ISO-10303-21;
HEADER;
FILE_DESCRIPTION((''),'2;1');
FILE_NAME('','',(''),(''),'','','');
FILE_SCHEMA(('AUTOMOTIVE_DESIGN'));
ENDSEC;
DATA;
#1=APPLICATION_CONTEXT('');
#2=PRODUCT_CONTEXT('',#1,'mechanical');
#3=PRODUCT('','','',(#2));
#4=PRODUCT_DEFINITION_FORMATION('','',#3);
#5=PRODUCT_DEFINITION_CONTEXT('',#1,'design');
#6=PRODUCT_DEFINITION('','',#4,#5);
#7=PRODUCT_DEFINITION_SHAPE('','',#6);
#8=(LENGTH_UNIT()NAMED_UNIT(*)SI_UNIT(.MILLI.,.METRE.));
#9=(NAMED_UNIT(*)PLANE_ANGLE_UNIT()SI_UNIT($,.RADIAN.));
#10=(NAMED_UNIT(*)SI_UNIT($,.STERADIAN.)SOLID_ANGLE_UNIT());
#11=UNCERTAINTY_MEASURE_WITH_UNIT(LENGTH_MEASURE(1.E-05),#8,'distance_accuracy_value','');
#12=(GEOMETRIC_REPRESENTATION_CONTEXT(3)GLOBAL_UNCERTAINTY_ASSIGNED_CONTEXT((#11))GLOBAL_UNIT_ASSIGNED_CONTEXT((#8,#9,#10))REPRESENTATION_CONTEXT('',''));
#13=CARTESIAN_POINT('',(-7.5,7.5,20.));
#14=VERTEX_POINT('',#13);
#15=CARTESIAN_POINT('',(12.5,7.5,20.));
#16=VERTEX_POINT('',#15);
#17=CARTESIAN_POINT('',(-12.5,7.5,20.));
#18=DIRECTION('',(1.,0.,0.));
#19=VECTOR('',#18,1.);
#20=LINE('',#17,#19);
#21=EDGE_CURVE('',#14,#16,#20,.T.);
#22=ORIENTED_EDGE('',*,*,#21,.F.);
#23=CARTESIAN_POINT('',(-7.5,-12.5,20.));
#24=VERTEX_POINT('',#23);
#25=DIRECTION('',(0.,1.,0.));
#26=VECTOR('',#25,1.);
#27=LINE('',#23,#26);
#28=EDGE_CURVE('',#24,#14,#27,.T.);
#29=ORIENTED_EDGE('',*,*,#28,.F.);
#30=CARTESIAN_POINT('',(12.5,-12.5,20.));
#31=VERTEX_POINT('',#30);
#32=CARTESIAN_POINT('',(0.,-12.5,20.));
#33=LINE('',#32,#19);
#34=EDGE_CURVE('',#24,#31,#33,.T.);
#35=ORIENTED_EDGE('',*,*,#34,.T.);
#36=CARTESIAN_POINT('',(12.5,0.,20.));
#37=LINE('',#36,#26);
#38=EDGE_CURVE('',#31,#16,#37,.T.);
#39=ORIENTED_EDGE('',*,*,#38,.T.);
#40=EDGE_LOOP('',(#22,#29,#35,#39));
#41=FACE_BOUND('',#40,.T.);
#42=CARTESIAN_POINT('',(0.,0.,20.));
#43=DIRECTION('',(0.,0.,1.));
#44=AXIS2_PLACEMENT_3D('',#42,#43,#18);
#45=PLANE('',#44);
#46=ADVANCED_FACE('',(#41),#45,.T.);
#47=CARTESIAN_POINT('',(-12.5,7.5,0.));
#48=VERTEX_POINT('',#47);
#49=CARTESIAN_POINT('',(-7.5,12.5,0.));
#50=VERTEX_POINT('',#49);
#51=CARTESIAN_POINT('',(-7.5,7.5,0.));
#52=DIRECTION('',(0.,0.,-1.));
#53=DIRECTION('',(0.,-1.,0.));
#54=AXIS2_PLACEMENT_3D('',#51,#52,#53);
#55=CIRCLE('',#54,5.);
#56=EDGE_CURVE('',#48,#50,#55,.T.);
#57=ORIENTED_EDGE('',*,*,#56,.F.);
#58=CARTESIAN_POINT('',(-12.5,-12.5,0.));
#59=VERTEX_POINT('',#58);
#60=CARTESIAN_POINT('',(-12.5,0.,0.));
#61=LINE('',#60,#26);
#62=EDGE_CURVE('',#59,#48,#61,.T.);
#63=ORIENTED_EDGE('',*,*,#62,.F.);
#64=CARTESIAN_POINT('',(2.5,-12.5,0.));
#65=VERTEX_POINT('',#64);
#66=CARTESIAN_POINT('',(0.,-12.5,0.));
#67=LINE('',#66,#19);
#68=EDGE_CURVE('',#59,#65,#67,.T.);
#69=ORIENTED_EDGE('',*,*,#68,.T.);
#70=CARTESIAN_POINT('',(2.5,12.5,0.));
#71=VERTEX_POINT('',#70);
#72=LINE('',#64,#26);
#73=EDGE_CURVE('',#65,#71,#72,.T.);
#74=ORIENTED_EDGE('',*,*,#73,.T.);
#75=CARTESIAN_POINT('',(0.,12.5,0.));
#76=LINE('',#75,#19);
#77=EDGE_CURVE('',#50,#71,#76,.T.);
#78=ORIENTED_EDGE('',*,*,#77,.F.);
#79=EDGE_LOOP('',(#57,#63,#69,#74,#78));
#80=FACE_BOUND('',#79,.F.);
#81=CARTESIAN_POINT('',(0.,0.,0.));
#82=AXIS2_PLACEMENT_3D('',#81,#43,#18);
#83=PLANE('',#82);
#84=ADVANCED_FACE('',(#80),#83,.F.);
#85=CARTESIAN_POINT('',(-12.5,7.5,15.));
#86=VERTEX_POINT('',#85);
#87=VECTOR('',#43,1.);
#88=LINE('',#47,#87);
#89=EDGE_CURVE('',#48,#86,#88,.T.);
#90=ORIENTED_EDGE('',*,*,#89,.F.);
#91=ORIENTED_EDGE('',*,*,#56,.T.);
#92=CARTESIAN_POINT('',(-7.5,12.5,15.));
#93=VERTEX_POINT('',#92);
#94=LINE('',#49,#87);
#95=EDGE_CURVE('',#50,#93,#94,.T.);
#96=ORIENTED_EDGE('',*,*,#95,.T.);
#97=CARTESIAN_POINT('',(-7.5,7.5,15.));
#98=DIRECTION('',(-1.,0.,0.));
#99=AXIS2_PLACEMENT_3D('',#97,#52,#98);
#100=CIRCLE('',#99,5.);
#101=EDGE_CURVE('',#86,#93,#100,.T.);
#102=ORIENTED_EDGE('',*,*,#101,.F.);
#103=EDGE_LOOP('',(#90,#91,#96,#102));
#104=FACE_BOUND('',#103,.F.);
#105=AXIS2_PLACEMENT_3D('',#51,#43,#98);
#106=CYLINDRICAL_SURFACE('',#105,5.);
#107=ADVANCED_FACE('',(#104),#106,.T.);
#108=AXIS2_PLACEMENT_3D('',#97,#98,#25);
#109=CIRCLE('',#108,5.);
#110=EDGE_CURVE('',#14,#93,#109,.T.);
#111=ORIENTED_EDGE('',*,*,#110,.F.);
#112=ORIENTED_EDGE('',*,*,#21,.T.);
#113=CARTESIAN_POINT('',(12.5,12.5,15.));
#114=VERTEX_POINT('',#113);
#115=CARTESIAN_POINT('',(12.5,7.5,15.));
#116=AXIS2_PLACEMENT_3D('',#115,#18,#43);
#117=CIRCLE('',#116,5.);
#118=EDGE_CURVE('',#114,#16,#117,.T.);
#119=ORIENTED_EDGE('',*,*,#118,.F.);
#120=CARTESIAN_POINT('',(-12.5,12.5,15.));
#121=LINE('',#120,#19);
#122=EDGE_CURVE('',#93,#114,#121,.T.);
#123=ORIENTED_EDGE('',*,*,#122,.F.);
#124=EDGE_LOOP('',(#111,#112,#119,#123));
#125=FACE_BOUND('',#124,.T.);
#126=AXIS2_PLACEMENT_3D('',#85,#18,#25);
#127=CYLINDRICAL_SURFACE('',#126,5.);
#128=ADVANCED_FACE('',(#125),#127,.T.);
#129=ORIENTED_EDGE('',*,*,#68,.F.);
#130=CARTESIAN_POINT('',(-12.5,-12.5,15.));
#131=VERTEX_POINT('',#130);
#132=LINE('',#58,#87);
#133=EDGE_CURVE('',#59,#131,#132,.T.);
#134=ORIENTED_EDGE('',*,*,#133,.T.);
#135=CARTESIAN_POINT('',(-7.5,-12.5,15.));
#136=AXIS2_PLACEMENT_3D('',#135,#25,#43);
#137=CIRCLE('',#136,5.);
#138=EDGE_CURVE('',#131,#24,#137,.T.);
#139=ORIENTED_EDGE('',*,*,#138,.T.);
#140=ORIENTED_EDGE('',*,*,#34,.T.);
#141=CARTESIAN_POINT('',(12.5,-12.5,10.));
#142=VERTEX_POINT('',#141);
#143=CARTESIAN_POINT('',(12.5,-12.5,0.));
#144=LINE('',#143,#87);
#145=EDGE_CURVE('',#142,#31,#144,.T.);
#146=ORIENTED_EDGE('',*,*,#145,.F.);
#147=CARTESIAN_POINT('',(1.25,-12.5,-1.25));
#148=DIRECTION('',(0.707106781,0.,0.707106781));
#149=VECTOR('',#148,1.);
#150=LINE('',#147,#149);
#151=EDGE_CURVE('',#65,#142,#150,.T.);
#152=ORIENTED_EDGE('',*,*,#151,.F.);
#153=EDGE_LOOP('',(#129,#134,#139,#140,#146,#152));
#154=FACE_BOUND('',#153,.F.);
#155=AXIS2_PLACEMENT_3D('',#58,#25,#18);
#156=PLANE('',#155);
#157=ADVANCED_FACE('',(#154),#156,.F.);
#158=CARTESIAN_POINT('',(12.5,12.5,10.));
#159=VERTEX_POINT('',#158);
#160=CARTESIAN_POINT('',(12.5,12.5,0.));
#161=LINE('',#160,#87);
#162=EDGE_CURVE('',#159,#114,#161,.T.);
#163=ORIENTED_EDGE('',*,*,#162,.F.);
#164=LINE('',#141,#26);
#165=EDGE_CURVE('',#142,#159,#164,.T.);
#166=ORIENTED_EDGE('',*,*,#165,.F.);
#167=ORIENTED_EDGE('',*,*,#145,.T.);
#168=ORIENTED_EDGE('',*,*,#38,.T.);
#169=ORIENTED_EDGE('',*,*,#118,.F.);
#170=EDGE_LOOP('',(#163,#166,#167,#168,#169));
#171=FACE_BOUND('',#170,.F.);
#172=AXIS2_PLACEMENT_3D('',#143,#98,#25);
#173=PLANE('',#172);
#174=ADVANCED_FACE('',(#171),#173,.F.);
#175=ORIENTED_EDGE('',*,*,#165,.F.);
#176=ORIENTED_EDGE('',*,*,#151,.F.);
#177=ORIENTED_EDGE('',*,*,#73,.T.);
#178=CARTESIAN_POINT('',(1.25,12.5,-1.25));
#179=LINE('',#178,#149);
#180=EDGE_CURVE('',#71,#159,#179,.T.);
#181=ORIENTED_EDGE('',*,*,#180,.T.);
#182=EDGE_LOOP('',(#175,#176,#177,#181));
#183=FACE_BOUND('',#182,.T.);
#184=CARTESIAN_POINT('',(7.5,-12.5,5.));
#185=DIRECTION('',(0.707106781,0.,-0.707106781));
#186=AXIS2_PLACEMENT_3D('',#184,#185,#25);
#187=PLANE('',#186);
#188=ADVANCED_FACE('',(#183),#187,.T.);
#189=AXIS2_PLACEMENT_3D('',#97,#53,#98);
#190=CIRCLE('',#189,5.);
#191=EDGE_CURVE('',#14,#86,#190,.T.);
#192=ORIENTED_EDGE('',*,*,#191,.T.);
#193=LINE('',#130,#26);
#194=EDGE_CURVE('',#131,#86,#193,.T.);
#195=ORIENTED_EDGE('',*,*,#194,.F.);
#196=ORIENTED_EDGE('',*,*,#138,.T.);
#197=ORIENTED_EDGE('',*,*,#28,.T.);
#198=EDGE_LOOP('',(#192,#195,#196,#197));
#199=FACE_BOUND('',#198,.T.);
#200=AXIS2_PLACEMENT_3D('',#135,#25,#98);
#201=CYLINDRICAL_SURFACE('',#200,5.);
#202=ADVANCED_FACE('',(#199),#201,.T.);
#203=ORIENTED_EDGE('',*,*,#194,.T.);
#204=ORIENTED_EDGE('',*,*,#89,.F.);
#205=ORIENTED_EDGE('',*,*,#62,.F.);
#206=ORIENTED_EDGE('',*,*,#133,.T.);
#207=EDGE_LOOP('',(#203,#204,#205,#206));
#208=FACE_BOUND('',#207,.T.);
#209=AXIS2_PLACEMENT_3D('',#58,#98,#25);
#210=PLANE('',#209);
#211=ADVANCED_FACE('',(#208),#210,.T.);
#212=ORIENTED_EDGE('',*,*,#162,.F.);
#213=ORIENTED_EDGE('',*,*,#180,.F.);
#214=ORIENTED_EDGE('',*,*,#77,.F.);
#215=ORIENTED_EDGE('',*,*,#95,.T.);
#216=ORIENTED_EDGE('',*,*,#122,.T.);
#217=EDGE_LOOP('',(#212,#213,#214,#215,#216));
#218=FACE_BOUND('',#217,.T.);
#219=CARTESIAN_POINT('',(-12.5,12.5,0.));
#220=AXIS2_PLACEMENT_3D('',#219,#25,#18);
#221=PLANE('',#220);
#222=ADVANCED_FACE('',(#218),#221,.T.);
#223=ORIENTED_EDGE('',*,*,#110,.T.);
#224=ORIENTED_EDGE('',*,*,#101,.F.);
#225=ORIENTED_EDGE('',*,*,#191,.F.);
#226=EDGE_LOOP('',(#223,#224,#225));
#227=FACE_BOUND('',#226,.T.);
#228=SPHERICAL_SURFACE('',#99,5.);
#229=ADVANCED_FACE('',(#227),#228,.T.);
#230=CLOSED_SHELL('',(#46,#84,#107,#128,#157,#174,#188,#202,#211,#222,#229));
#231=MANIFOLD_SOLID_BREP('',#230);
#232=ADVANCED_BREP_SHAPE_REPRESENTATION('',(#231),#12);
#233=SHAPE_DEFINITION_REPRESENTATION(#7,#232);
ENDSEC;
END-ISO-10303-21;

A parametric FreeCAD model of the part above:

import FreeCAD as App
import Part
import Sketcher

V = App.Vector


def edges_at(feature, points):
    """Names of the edges that pass closest to the given points."""
    edges = feature.Shape.Edges
    near = lambda p: min(range(len(edges)), key=lambda i: edges[i].distToShape(Part.Vertex(*p))[0])
    return sorted({f"Edge{near(p) + 1}" for p in points})


def add_polygon(sketch, points):
    """Adds a closed chain of lines whose ends are joined by coincident constraints."""
    first, n = sketch.GeometryCount, len(points)
    for a, b in zip(points, points[1:] + points[:1]):
        sketch.addGeometry(Part.LineSegment(App.Vector(*a, 0), App.Vector(*b, 0)), False)
    for i in range(n):
        sketch.addConstraint(Sketcher.Constraint("Coincident", first + i, 2, first + (i + 1) % n, 1))

doc = App.newDocument("Part")
body = doc.addObject("PartDesign::Body", "Body")

# Sketch on XY plane
sketch1 = body.newObject("Sketcher::SketchObject", "Sketch")
sketch1.AttachmentSupport = (doc.getObject("XY_Plane"), [""])
sketch1.MapMode = "FlatFace"
add_polygon(sketch1, [(-12, 12), (-12, -12), (12, -12), (12, 12)])  # lines 0-3
sketch1.addConstraint(Sketcher.Constraint("Vertical", 0))
sketch1.addConstraint(Sketcher.Constraint("Horizontal", 1))
sketch1.addConstraint(Sketcher.Constraint("Vertical", 2))
sketch1.addConstraint(Sketcher.Constraint("Horizontal", 3))
sketch1.addConstraint(Sketcher.Constraint("Symmetric", 0, 2, 2, 2, -1, 1))
sketch1.addConstraint(Sketcher.Constraint("Equal", 3, 0))
sketch1.addConstraint(Sketcher.Constraint("DistanceX", 1, 1, 1, 2, 25.0))
pad1 = body.newObject("PartDesign::Pad", "Pad")
pad1.Profile = sketch1
pad1.Length = 20
doc.recompute()

fillet = body.newObject("PartDesign::Fillet", "Fillet")
fillet.Base = (pad1, edges_at(pad1, [(-12.5, 12.5, 10), (-12.5, 0, 20), (0, 12.5, 20)]))
fillet.Radius = 5
doc.recompute()

chamfer = body.newObject("PartDesign::Chamfer", "Chamfer")
chamfer.Base = (fillet, edges_at(fillet, [(12.5, 0, 0)]))
chamfer.Size = 10

doc.recompute()
